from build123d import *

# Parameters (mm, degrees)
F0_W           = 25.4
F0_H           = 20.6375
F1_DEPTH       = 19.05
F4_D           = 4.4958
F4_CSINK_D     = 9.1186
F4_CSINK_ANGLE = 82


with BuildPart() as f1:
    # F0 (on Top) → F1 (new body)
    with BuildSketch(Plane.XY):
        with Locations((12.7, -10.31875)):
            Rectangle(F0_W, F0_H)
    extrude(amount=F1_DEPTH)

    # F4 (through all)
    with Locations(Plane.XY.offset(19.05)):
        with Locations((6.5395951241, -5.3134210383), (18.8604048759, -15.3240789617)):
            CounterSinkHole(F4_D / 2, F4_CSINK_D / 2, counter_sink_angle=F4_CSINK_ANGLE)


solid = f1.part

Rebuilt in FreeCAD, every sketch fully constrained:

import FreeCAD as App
import Part
import Sketcher

V = App.Vector
Q = App.Units.Quantity

doc = App.newDocument("Part")
body = doc.addObject("PartDesign::Body", "Body")

sketch1 = body.newObject("Sketcher::SketchObject", "Sketch")
sketch1.AttachmentSupport = (doc.getObject("XY_Plane"), [""])
sketch1.MapMode = "FlatFace"
sketch1.addGeometry([
    Part.LineSegment(V(0, 0, 0), V(0, -21, 0)),
    Part.LineSegment(V(0, -21, 0), V(25, -21, 0)),
    Part.LineSegment(V(25, -21, 0), V(25, 0, 0)),
    Part.LineSegment(V(25, 0, 0), V(0, 0, 0)),
], False)
sketch1.addConstraint([
    Sketcher.Constraint("Coincident", 0, 2, 1, 1),
    Sketcher.Constraint("Coincident", 1, 2, 2, 1),
    Sketcher.Constraint("Coincident", 2, 2, 3, 1),
    Sketcher.Constraint("Coincident", 3, 2, 0, 1),
    Sketcher.Constraint("Vertical", 0),
    Sketcher.Constraint("Horizontal", 1),
    Sketcher.Constraint("Vertical", 2),
    Sketcher.Constraint("Horizontal", 3),
    Sketcher.Constraint("Coincident", 3, 2, -1, 1),
    Sketcher.Constraint("DistanceX", 1, 1, 1, 2, Q("1 in")),
    Sketcher.Constraint("DistanceY", 0, 2, 0, 1, Q("0.8125 in")),
])
pad1 = body.newObject("PartDesign::Pad", "Pad")
pad1.Profile = sketch1
pad1.Length = Q("0.75 in")

sketch2 = body.newObject("Sketcher::SketchObject", "Sketch001")
sketch2.AttachmentSupport = (doc.getObject("XY_Plane"), [""])
sketch2.MapMode = "FlatFace"
sketch2.AttachmentOffset = App.Placement(V(0, 0, 0.75 * 25.4), App.Rotation())
sketch2.addGeometry([
    Part.Circle(V(6.5, -5.3, 0), V(0, 0, 1), 2.2),
    Part.Circle(V(18.9, -15.3, 0), V(0, 0, 1), 2.2),
], False)
sketch2.addConstraint([
    Sketcher.Constraint("Equal", 0, 1),
    Sketcher.Constraint("Diameter", 0, Q("0.177 in")),
    Sketcher.Constraint("DistanceY", 0, 3, -1, 1, 5.313421),
    Sketcher.Constraint("DistanceY", 1, 3, -1, 1, 15.324079),
    Sketcher.Constraint("DistanceX", 0, 3, 1, 3, 12.32081),
    Sketcher.Constraint("DistanceX", -1, 1, 0, 3, 6.539595),
])
doc.recompute()
hole = body.newObject("PartDesign::Hole", "Hole")
hole.Profile = sketch2
hole.ThreadType = "None"
hole.Diameter = Q("0.177 in")
hole.DepthType = "ThroughAll"
hole.HoleCutType = "Countersink"
hole.HoleCutDiameter = Q("0.359 in")
hole.HoleCutCountersinkAngle = 82

doc.recompute()
